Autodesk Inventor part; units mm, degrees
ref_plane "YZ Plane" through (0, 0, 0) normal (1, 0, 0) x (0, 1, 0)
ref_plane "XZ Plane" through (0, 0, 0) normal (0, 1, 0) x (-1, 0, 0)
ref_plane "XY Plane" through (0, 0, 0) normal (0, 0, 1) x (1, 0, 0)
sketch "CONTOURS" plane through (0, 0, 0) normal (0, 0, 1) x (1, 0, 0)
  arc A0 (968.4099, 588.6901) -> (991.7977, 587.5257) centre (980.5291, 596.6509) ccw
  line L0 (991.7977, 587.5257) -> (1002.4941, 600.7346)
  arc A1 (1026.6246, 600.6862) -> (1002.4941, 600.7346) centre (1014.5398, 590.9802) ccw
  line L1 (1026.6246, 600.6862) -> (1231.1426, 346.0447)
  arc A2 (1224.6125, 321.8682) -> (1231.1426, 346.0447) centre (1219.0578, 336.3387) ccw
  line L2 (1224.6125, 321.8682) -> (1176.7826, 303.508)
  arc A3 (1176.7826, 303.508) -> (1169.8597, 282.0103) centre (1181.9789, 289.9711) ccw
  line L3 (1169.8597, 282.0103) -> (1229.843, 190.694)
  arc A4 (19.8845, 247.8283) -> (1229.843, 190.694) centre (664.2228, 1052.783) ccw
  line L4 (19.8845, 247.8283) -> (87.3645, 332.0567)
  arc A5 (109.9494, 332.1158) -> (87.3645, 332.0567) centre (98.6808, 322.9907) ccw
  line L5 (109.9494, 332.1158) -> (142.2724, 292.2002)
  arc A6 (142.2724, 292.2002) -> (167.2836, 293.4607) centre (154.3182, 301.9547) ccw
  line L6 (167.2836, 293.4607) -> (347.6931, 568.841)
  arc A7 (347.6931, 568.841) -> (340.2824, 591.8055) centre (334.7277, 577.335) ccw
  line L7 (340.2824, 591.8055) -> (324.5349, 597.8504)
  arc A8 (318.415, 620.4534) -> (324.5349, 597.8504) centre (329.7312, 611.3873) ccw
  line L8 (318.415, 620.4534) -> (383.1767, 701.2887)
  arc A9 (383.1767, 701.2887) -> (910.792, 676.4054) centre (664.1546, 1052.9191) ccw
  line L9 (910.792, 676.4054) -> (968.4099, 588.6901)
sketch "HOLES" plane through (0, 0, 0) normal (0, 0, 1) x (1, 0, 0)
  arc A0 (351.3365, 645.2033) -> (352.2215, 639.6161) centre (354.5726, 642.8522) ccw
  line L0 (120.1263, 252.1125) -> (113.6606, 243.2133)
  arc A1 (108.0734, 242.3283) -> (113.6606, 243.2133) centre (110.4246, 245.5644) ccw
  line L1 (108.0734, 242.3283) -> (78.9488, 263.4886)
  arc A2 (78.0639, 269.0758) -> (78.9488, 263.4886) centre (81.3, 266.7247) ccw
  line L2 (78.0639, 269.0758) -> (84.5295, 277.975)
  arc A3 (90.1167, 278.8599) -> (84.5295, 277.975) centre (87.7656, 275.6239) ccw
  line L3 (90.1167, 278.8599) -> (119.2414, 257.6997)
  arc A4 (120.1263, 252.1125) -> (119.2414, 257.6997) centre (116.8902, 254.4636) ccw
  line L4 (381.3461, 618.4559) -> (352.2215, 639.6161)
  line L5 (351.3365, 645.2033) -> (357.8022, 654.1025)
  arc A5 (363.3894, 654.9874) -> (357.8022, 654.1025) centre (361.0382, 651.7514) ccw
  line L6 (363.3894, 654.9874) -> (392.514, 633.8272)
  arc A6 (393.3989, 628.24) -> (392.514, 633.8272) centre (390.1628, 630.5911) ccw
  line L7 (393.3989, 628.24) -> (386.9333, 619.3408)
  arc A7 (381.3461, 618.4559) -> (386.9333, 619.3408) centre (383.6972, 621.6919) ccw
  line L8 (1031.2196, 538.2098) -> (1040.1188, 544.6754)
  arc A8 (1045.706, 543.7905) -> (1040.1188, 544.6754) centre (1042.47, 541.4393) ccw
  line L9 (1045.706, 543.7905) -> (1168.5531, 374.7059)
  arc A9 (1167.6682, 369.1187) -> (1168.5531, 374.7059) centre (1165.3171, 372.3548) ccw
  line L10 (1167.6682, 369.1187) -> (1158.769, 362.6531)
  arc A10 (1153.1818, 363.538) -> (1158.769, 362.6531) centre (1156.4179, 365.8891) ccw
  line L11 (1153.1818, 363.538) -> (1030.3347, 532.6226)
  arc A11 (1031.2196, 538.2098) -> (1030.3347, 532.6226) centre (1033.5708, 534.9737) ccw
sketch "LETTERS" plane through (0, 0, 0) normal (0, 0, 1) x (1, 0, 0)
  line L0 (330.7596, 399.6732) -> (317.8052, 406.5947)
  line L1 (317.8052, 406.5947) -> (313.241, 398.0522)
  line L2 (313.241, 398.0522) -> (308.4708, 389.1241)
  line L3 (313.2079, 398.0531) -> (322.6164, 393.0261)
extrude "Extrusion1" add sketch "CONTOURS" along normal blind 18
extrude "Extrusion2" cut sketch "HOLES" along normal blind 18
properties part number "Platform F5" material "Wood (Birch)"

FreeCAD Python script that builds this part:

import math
import FreeCAD as App
import Part
import Sketcher

V = App.Vector
Q = App.Units.Quantity

doc = App.newDocument("Part")
body = doc.addObject("PartDesign::Body", "Body")

# Sketch on XY plane
sketch1 = doc.addObject("Sketcher::SketchObject", "Sketch")
body.addObject(sketch1)
sketch1.AttachmentSupport = (doc.XY_Plane, [""])
sketch1.MapMode = "FlatFace"
sketch1.addGeometry([
    Part.ArcOfCircle(Part.Circle(V(981, 597, 0), V(0, 0, 1), 14), math.radians(-147), math.radians(-39)),  # 0
    Part.LineSegment(V(968, 589, 0), V(911, 676, 0)),  # 1
    Part.ArcOfCircle(Part.Circle(V(664, 1053, 0), V(0, 0, 1), 450), math.radians(-129), math.radians(-57)),  # 2
    Part.LineSegment(V(383, 701, 0), V(318, 620, 0)),  # 3
    Part.ArcOfCircle(Part.Circle(V(330, 611, 0), V(0, 0, 1), 15), math.radians(141), math.radians(249)),  # 4
    Part.LineSegment(V(325, 598, 0), V(340, 592, 0)),  # 5
    Part.ArcOfCircle(Part.Circle(V(335, 577, 0), V(0, 0, 1), 15), math.radians(-33), math.radians(69)),  # 6
    Part.LineSegment(V(348, 569, 0), V(167, 293, 0)),  # 7
    Part.ArcOfCircle(Part.Circle(V(154, 302, 0), V(0, 0, 1), 16), math.radians(-141), math.radians(-33)),  # 8
    Part.LineSegment(V(142, 292, 0), V(110, 332, 0)),  # 9
    Part.ArcOfCircle(Part.Circle(V(99, 323, 0), V(0, 0, 1), 14), math.radians(39), math.radians(141)),  # 10
    Part.LineSegment(V(87, 332, 0), V(20, 248, 0)),  # 11
    Part.ArcOfCircle(Part.Circle(V(664, 1053, 0), V(0, 0, 1), 1031), math.radians(-129), math.radians(-57)),  # 12
    Part.LineSegment(V(1230, 191, 0), V(1170, 282, 0)),  # 13
    Part.ArcOfCircle(Part.Circle(V(1182, 290, 0), V(0, 0, 1), 14), math.radians(111), math.radians(213)),  # 14
    Part.LineSegment(V(1177, 304, 0), V(1225, 322, 0)),  # 15
    Part.ArcOfCircle(Part.Circle(V(1219, 336, 0), V(0, 0, 1), 16), math.radians(-69), math.radians(39)),  # 16
    Part.LineSegment(V(1231, 346, 0), V(1027, 601, 0)),  # 17
    Part.ArcOfCircle(Part.Circle(V(1015, 591, 0), V(0, 0, 1), 15), math.radians(39), math.radians(141)),  # 18
    Part.LineSegment(V(1002, 601, 0), V(992, 588, 0)),  # 19
], False)
sketch1.addConstraint([
    Sketcher.Constraint("Tangent", 0, 1, 1, 1),
    Sketcher.Constraint("Coincident", 1, 2, 2, 2),
    Sketcher.Constraint("Coincident", 2, 1, 3, 1),
    Sketcher.Constraint("Tangent", 3, 2, 4, 1),
    Sketcher.Constraint("Tangent", 4, 2, 5, 1),
    Sketcher.Constraint("Tangent", 5, 2, 6, 2),
    Sketcher.Constraint("Tangent", 6, 1, 7, 1),
    Sketcher.Constraint("Tangent", 7, 2, 8, 2),
    Sketcher.Constraint("Tangent", 8, 1, 9, 1),
    Sketcher.Constraint("Tangent", 9, 2, 10, 1),
    Sketcher.Constraint("Tangent", 10, 2, 11, 1),
    Sketcher.Constraint("Coincident", 11, 2, 12, 1),
    Sketcher.Constraint("Coincident", 12, 2, 13, 1),
    Sketcher.Constraint("Tangent", 13, 2, 14, 2),
    Sketcher.Constraint("Tangent", 14, 1, 15, 1),
    Sketcher.Constraint("Tangent", 15, 2, 16, 1),
    Sketcher.Constraint("Tangent", 16, 2, 17, 1),
    Sketcher.Constraint("Tangent", 17, 2, 18, 1),
    Sketcher.Constraint("Tangent", 18, 2, 19, 1),
    Sketcher.Constraint("Tangent", 19, 2, 0, 2),
    Sketcher.Constraint("Equal", 0, 4),
    Sketcher.Constraint("Equal", 6, 8),
    Sketcher.Constraint("Equal", 4, 10),
    Sketcher.Constraint("Equal", 10, 14),
    Sketcher.Constraint("Equal", 8, 16),
    Sketcher.Constraint("Equal", 16, 18),
    Sketcher.Constraint("Parallel", 3, 11),
    Sketcher.Constraint("Parallel", 1, 13),
    Sketcher.Constraint("Radius", 0, 14.5),
    Sketcher.Constraint("Radius", 6, 15.5),
    Sketcher.Constraint("Angle", 5, Q("-21 deg")),
    Sketcher.Constraint("Angle", 9, Q("129 deg")),
    Sketcher.Constraint("Angle", 15, Q("21 deg")),
    Sketcher.Constraint("Angle", 19, Q("-129 deg")),
    Sketcher.Constraint("Angle", 1, Q("123.2999 deg")),
    Sketcher.Constraint("Angle", 3, Q("-128.7002 deg")),
    Sketcher.Constraint("Radius", 12, 1031.079),
    Sketcher.Constraint("Angle", 7, Q("-123.23 deg")),
    Sketcher.Constraint("Angle", 17, Q("128.77 deg")),
    Sketcher.Constraint("Radius", 2, 450.1028),
    Sketcher.Constraint("DistanceX", -1, 1, 0, 1, 968.41),
    Sketcher.Constraint("DistanceY", -1, 1, 0, 1, 588.69),
    Sketcher.Constraint("DistanceX", 6, 3, 16, 3, 884.33),
    Sketcher.Constraint("DistanceX", 0, 1, 18, 3, 46.13),
    Sketcher.Constraint("DistanceY", 7, 2, 10, 3, 29.53),
    Sketcher.Constraint("DistanceX", 11, 2, 10, 2, 67.48),
    Sketcher.Constraint("DistanceX", 18, 3, 13, 2, 155.32),
    Sketcher.Constraint("DistanceY", 13, 2, 18, 3, 308.97),
    Sketcher.Constraint("Distance", 3, 103.578),
    Sketcher.Constraint("Distance", 7, 329.214),
    Sketcher.Constraint("Distance", 13, 109.255),
    Sketcher.Constraint("DistanceY", -1, 1, 2, 3, 1052.919),
    Sketcher.Constraint("DistanceY", -1, 1, 6, 3, 577.335),
    Sketcher.Constraint("DistanceX", -1, 1, 1, 2, 910.792),
])
pad1 = doc.addObject("PartDesign::Pad", "Pad")
body.addObject(pad1)
pad1.Profile = sketch1
pad1.Length = 18

# Sketch on XY plane
sketch2 = doc.addObject("Sketcher::SketchObject", "Sketch001")
body.addObject(sketch2)
sketch2.AttachmentSupport = (doc.XY_Plane, [""])
sketch2.MapMode = "FlatFace"
sketch2.addGeometry([
    Part.LineSegment(V(357.8, 654.1, 0), V(351.3, 645.2, 0)),  # 0
    Part.ArcOfCircle(Part.Circle(V(354.6, 642.9, 0), V(0, 0, 1), 4), math.radians(144), math.radians(234)),  # 1
    Part.LineSegment(V(352.2, 639.6, 0), V(381.3, 618.5, 0)),  # 2
    Part.ArcOfCircle(Part.Circle(V(383.7, 621.7, 0), V(0, 0, 1), 4), math.radians(-126), math.radians(-36)),  # 3
    Part.LineSegment(V(386.9, 619.3, 0), V(393.4, 628.2, 0)),  # 4
    Part.ArcOfCircle(Part.Circle(V(390.2, 630.6, 0), V(0, 0, 1), 4), math.radians(-36), math.radians(54)),  # 5
    Part.LineSegment(V(392.5, 633.8, 0), V(363.4, 655, 0)),  # 6
    Part.ArcOfCircle(Part.Circle(V(361, 651.8, 0), V(0, 0, 1), 4), math.radians(54), math.radians(144)),  # 7
    Part.LineSegment(V(113.7, 243.2, 0), V(120.1, 252.1, 0)),  # 8
    Part.ArcOfCircle(Part.Circle(V(116.9, 254.5, 0), V(0, 0, 1), 4), math.radians(-36), math.radians(54)),  # 9
    Part.LineSegment(V(119.2, 257.7, 0), V(90.1, 278.9, 0)),  # 10
    Part.ArcOfCircle(Part.Circle(V(87.8, 275.6, 0), V(0, 0, 1), 4), math.radians(54), math.radians(144)),  # 11
    Part.LineSegment(V(84.5, 278, 0), V(78.1, 269.1, 0)),  # 12
    Part.ArcOfCircle(Part.Circle(V(81.3, 266.7, 0), V(0, 0, 1), 4), math.radians(144), math.radians(234)),  # 13
    Part.LineSegment(V(78.9, 263.5, 0), V(108.1, 242.3, 0)),  # 14
    Part.ArcOfCircle(Part.Circle(V(110.4, 245.6, 0), V(0, 0, 1), 4), math.radians(-126), math.radians(-36)),  # 15
    Part.LineSegment(V(1040.1, 544.7, 0), V(1031.2, 538.2, 0)),  # 16
    Part.ArcOfCircle(Part.Circle(V(1033.6, 535, 0), V(0, 0, 1), 4), math.radians(126), math.radians(216)),  # 17
    Part.LineSegment(V(1030.3, 532.6, 0), V(1153.2, 363.5, 0)),  # 18
    Part.ArcOfCircle(Part.Circle(V(1156.4, 365.9, 0), V(0, 0, 1), 4), math.radians(-144), math.radians(-54)),  # 19
    Part.LineSegment(V(1158.8, 362.7, 0), V(1167.7, 369.1, 0)),  # 20
    Part.ArcOfCircle(Part.Circle(V(1165.3, 372.4, 0), V(0, 0, 1), 4), math.radians(-54), math.radians(36)),  # 21
    Part.LineSegment(V(1168.6, 374.7, 0), V(1045.7, 543.8, 0)),  # 22
    Part.ArcOfCircle(Part.Circle(V(1042.5, 541.4, 0), V(0, 0, 1), 4), math.radians(36), math.radians(126)),  # 23
], False)
sketch2.addConstraint([
    Sketcher.Constraint("Tangent", 0, 2, 1, 1),
    Sketcher.Constraint("Tangent", 1, 2, 2, 1),
    Sketcher.Constraint("Tangent", 2, 2, 3, 1),
    Sketcher.Constraint("Tangent", 3, 2, 4, 1),
    Sketcher.Constraint("Tangent", 4, 2, 5, 1),
    Sketcher.Constraint("Tangent", 5, 2, 6, 1),
    Sketcher.Constraint("Tangent", 6, 2, 7, 1),
    Sketcher.Constraint("Tangent", 7, 2, 0, 1),
    Sketcher.Constraint("Tangent", 8, 2, 9, 1),
    Sketcher.Constraint("Tangent", 9, 2, 10, 1),
    Sketcher.Constraint("Tangent", 10, 2, 11, 1),
    Sketcher.Constraint("Tangent", 11, 2, 12, 1),
    Sketcher.Constraint("Tangent", 12, 2, 13, 1),
    Sketcher.Constraint("Tangent", 13, 2, 14, 1),
    Sketcher.Constraint("Tangent", 14, 2, 15, 1),
    Sketcher.Constraint("Tangent", 15, 2, 8, 1),
    Sketcher.Constraint("Tangent", 16, 2, 17, 1),
    Sketcher.Constraint("Tangent", 17, 2, 18, 1),
    Sketcher.Constraint("Tangent", 18, 2, 19, 1),
    Sketcher.Constraint("Tangent", 19, 2, 20, 1),
    Sketcher.Constraint("Tangent", 20, 2, 21, 1),
    Sketcher.Constraint("Tangent", 21, 2, 22, 1),
    Sketcher.Constraint("Tangent", 22, 2, 23, 1),
    Sketcher.Constraint("Tangent", 23, 2, 16, 1),
    Sketcher.Constraint("Equal", 1, 3),
    Sketcher.Constraint("Equal", 3, 5),
    Sketcher.Constraint("Equal", 5, 7),
    Sketcher.Constraint("Equal", 7, 9),
    Sketcher.Constraint("Equal", 9, 11),
    Sketcher.Constraint("Equal", 11, 13),
    Sketcher.Constraint("Equal", 13, 15),
    Sketcher.Constraint("Equal", 15, 17),
    Sketcher.Constraint("Equal", 17, 19),
    Sketcher.Constraint("Equal", 19, 21),
    Sketcher.Constraint("Equal", 21, 23),
    Sketcher.Constraint("Perpendicular", 0, 2),
    Sketcher.Constraint("Perpendicular", 2, 4),
    Sketcher.Constraint("Perpendicular", 4, 6),
    Sketcher.Constraint("Perpendicular", 6, 8),
    Sketcher.Constraint("Perpendicular", 8, 10),
    Sketcher.Constraint("Perpendicular", 10, 12),
    Sketcher.Constraint("Perpendicular", 12, 14),
    Sketcher.Constraint("Perpendicular", 16, 18),
    Sketcher.Constraint("Perpendicular", 18, 20),
    Sketcher.Constraint("Perpendicular", 20, 22),
    Sketcher.Constraint("Equal", 4, 8),
    Sketcher.Constraint("Equal", 6, 10),
    Sketcher.Constraint("Equal", 12, 16),
    Sketcher.Constraint("Radius", 1, 4.0),
    Sketcher.Constraint("Angle", 0, Q("-126.0002 deg")),
    Sketcher.Constraint("Angle", 16, Q("-144.0002 deg")),
    Sketcher.Constraint("Distance", 0, 11.0),
    Sketcher.Constraint("Distance", 2, 36.0),
    Sketcher.Constraint("Distance", 18, 209.0),
    Sketcher.Constraint("DistanceX", -1, 1, 13, 3, 81.3),
    Sketcher.Constraint("DistanceX", -1, 1, 23, 3, 1042.47),
    Sketcher.Constraint("DistanceY", -1, 1, 4, 2, 628.24),
    Sketcher.Constraint("DistanceY", -1, 1, 10, 2, 278.86),
    Sketcher.Constraint("DistanceY", 9, 3, 17, 3, 280.51),
    Sketcher.Constraint("DistanceX", 3, 3, 21, 3, 781.62),
])
pocket1 = doc.addObject("PartDesign::Pocket", "Pocket")
body.addObject(pocket1)
pocket1.Profile = sketch2
pocket1.Length = 18
pocket1.Reversed = True

doc.recompute()
